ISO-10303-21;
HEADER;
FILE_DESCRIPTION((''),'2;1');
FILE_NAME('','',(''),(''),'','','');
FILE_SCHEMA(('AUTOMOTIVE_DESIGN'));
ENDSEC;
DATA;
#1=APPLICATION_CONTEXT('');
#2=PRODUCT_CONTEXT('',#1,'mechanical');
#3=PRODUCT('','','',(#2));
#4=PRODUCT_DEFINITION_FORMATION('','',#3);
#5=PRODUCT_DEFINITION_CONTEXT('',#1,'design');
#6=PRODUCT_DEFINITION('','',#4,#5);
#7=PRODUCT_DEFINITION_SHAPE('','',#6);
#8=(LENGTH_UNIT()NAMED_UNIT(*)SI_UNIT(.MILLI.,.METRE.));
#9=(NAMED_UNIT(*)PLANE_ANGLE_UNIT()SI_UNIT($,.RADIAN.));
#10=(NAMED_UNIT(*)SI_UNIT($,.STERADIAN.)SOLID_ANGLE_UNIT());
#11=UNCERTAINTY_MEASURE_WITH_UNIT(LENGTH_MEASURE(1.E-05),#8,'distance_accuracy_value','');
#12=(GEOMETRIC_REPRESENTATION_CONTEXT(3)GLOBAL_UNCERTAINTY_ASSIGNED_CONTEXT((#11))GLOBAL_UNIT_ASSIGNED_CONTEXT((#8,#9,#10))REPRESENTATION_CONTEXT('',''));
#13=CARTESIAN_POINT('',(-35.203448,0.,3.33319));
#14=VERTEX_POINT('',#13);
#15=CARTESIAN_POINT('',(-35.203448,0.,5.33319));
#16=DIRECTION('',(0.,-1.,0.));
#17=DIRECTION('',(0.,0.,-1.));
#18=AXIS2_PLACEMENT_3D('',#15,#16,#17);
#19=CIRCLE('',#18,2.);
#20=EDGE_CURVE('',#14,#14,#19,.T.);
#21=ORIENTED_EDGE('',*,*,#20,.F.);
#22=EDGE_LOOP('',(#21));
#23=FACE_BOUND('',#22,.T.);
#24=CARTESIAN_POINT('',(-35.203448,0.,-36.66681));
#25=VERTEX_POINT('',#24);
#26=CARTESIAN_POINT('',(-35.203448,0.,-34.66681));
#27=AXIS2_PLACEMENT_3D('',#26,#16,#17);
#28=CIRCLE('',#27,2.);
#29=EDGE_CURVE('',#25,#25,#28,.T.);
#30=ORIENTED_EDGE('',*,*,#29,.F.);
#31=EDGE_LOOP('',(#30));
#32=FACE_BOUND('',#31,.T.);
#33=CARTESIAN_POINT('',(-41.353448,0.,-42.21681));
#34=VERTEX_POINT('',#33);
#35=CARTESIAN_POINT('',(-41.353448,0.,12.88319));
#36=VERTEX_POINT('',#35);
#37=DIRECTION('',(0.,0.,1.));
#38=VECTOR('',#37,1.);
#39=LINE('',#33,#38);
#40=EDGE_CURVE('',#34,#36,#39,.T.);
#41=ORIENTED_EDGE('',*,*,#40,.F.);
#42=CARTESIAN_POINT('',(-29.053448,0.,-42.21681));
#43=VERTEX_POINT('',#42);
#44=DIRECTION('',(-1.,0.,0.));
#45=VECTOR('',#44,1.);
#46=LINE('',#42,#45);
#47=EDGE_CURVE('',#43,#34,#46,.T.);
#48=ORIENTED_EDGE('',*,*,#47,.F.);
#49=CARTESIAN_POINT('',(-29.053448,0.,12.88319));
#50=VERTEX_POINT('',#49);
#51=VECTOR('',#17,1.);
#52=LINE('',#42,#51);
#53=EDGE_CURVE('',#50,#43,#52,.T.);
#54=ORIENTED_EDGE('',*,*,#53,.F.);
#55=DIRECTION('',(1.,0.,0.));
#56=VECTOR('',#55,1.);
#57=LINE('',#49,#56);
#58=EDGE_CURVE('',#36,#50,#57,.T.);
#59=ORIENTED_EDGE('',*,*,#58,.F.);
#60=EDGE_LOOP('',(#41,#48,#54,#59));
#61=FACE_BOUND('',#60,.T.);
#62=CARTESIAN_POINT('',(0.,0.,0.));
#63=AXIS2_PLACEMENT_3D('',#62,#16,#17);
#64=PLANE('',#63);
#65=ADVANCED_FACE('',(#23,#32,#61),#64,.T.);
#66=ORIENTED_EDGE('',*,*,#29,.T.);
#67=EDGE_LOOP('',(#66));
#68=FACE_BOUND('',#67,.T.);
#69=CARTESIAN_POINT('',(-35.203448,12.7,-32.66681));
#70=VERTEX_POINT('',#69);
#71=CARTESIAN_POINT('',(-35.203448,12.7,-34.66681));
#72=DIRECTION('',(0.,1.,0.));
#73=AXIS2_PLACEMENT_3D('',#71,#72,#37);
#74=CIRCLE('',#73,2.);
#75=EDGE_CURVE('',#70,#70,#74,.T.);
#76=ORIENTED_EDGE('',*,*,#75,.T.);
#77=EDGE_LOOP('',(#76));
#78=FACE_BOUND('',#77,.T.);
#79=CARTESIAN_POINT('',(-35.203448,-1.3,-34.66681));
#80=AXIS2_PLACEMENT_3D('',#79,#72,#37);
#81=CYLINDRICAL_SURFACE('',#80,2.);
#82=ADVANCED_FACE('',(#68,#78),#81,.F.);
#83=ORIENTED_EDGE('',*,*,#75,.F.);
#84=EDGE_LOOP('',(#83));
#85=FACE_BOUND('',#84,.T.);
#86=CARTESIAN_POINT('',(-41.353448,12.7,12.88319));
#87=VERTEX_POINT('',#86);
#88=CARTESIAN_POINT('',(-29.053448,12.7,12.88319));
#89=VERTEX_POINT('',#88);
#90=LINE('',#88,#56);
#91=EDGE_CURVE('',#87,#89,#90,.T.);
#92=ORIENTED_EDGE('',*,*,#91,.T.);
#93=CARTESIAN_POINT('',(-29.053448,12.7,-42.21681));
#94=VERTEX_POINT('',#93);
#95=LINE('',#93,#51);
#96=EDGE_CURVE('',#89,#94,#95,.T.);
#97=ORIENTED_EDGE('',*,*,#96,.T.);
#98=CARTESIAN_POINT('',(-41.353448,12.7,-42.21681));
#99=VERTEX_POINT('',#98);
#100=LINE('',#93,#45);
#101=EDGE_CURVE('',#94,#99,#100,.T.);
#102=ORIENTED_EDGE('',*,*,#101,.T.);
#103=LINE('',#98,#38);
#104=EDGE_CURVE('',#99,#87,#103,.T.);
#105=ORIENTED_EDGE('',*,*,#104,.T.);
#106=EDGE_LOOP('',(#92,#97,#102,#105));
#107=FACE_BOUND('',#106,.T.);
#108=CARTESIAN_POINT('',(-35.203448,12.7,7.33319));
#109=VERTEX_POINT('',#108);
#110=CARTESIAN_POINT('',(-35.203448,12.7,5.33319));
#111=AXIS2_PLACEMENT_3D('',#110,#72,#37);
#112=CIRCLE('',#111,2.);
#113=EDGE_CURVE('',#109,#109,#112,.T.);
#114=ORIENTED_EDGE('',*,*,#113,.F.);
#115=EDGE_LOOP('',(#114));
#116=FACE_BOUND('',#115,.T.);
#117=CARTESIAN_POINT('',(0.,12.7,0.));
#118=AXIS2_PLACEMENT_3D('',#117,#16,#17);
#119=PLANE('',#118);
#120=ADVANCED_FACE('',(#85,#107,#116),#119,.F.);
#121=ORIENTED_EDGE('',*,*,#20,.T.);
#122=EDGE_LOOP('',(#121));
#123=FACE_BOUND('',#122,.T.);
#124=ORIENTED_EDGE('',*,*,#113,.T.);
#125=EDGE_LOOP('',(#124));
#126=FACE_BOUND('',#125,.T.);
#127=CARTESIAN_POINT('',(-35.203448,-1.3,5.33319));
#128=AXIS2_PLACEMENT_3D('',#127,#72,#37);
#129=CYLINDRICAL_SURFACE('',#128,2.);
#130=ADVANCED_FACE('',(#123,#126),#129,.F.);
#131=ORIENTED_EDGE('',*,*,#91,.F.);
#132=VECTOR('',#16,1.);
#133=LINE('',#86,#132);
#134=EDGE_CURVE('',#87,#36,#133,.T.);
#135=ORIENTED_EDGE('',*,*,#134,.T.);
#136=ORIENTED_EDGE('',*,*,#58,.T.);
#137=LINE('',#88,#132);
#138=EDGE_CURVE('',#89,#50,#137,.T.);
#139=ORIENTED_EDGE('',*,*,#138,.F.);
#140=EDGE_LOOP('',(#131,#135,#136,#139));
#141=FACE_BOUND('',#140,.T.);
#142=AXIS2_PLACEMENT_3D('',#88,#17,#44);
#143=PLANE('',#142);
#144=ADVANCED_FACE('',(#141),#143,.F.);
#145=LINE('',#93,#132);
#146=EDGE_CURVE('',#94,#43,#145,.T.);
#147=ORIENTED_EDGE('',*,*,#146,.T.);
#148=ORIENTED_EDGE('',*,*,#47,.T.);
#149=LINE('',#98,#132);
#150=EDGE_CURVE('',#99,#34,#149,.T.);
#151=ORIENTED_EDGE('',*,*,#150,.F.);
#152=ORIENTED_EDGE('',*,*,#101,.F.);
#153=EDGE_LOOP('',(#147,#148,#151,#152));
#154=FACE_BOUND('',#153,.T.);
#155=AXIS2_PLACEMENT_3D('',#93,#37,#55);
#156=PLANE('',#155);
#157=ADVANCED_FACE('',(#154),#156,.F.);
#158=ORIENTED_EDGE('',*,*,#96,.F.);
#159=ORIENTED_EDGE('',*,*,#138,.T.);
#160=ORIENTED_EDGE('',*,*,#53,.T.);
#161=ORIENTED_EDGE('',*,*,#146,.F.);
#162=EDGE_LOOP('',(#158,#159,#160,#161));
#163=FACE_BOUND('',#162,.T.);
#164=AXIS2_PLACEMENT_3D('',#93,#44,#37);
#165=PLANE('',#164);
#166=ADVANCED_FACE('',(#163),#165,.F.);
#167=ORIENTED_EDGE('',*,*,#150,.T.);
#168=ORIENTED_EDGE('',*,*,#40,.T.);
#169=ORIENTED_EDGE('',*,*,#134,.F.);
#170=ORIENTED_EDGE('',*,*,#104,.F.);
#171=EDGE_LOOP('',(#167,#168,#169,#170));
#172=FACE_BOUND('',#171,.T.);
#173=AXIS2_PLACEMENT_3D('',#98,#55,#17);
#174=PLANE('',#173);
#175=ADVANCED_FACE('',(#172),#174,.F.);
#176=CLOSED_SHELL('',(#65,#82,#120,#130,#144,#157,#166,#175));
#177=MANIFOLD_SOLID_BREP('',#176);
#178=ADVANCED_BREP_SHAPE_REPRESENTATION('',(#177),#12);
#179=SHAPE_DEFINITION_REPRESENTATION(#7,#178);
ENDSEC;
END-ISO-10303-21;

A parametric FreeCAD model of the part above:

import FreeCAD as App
import Part
import Sketcher
from FreeCAD import Vector
Q = App.Units.Quantity

doc = App.newDocument("Part")
body = doc.addObject("PartDesign::Body", "Body")

# Sketch on XZ plane
sketch1 = doc.addObject("Sketcher::SketchObject", "Sketch")
body.addObject(sketch1)
sketch1.AttachmentSupport = (doc.XZ_Plane, [""])
sketch1.MapMode = "FlatFace"
sketch1.addGeometry(Part.LineSegment(Vector(-41.353448, -42.21681, 0), Vector(-41.353448, 12.88319, 0)), False)
sketch1.addGeometry(Part.LineSegment(Vector(-41.353448, 12.88319, 0), Vector(-29.053448, 12.88319, 0)), False)
sketch1.addGeometry(Part.LineSegment(Vector(-29.053448, 12.88319, 0), Vector(-29.053448, -42.21681, 0)), False)
sketch1.addGeometry(Part.LineSegment(Vector(-29.053448, -42.21681, 0), Vector(-41.353448, -42.21681, 0)), False)
sketch1.addConstraint(Sketcher.Constraint("Coincident", 0, 2, 1, 1))
sketch1.addConstraint(Sketcher.Constraint("Coincident", 1, 2, 2, 1))
sketch1.addConstraint(Sketcher.Constraint("Coincident", 2, 2, 3, 1))
sketch1.addConstraint(Sketcher.Constraint("Coincident", 3, 2, 0, 1))
sketch1.addConstraint(Sketcher.Constraint("Vertical", 0))
sketch1.addConstraint(Sketcher.Constraint("Horizontal", 1))
sketch1.addConstraint(Sketcher.Constraint("Vertical", 2))
sketch1.addConstraint(Sketcher.Constraint("Horizontal", 3))
sketch1.addConstraint(Sketcher.Constraint("DistanceX", 1, 1, 1, 2, Q("12.3 mm")))
sketch1.addConstraint(Sketcher.Constraint("DistanceY", 0, 1, 0, 2, Q("55.1 mm")))
sketch1.addConstraint(Sketcher.Constraint("DistanceX", 0, 2, -1, 1, Q("41.353448 mm")))
sketch1.addConstraint(Sketcher.Constraint("DistanceY", -1, 1, 0, 2, Q("12.88319 mm")))
pad1 = doc.addObject("PartDesign::Pad", "Pad")
body.addObject(pad1)
pad1.Profile = sketch1
pad1.Length = 12.7
pad1.Reversed = True

# Sketch on XZ plane
sketch2 = doc.addObject("Sketcher::SketchObject", "Sketch001")
body.addObject(sketch2)
sketch2.AttachmentSupport = (doc.XZ_Plane, [""])
sketch2.MapMode = "FlatFace"
sketch2.AttachmentOffset = App.Placement(Vector(0, 0, -12.7), App.Rotation())
sketch2.addGeometry(Part.Circle(Vector(-35.203448, 5.33319, 0), Vector(0, 0, 1), 2), False)
sketch2.addGeometry(Part.Circle(Vector(-35.203448, -34.66681, 0), Vector(0, 0, 1), 2), False)
sketch2.addConstraint(Sketcher.Constraint("Equal", 0, 1))
sketch2.addConstraint(Sketcher.Constraint("Vertical", 0, 3, 1, 3))
sketch2.addConstraint(Sketcher.Constraint("Diameter", 0, Q("4 mm")))
sketch2.addConstraint(Sketcher.Constraint("DistanceY", 1, 3, 0, 3, Q("40 mm")))
sketch2.addConstraint(Sketcher.Constraint("DistanceX", 0, 3, -1, 1, Q("35.203448 mm")))
sketch2.addConstraint(Sketcher.Constraint("DistanceY", -1, 1, 0, 3, Q("5.33319 mm")))
pocket1 = doc.addObject("PartDesign::Pocket", "Pocket")
body.addObject(pocket1)
pocket1.Profile = sketch2
pocket1.Length = 14
pocket1.Reversed = True

doc.recompute()
